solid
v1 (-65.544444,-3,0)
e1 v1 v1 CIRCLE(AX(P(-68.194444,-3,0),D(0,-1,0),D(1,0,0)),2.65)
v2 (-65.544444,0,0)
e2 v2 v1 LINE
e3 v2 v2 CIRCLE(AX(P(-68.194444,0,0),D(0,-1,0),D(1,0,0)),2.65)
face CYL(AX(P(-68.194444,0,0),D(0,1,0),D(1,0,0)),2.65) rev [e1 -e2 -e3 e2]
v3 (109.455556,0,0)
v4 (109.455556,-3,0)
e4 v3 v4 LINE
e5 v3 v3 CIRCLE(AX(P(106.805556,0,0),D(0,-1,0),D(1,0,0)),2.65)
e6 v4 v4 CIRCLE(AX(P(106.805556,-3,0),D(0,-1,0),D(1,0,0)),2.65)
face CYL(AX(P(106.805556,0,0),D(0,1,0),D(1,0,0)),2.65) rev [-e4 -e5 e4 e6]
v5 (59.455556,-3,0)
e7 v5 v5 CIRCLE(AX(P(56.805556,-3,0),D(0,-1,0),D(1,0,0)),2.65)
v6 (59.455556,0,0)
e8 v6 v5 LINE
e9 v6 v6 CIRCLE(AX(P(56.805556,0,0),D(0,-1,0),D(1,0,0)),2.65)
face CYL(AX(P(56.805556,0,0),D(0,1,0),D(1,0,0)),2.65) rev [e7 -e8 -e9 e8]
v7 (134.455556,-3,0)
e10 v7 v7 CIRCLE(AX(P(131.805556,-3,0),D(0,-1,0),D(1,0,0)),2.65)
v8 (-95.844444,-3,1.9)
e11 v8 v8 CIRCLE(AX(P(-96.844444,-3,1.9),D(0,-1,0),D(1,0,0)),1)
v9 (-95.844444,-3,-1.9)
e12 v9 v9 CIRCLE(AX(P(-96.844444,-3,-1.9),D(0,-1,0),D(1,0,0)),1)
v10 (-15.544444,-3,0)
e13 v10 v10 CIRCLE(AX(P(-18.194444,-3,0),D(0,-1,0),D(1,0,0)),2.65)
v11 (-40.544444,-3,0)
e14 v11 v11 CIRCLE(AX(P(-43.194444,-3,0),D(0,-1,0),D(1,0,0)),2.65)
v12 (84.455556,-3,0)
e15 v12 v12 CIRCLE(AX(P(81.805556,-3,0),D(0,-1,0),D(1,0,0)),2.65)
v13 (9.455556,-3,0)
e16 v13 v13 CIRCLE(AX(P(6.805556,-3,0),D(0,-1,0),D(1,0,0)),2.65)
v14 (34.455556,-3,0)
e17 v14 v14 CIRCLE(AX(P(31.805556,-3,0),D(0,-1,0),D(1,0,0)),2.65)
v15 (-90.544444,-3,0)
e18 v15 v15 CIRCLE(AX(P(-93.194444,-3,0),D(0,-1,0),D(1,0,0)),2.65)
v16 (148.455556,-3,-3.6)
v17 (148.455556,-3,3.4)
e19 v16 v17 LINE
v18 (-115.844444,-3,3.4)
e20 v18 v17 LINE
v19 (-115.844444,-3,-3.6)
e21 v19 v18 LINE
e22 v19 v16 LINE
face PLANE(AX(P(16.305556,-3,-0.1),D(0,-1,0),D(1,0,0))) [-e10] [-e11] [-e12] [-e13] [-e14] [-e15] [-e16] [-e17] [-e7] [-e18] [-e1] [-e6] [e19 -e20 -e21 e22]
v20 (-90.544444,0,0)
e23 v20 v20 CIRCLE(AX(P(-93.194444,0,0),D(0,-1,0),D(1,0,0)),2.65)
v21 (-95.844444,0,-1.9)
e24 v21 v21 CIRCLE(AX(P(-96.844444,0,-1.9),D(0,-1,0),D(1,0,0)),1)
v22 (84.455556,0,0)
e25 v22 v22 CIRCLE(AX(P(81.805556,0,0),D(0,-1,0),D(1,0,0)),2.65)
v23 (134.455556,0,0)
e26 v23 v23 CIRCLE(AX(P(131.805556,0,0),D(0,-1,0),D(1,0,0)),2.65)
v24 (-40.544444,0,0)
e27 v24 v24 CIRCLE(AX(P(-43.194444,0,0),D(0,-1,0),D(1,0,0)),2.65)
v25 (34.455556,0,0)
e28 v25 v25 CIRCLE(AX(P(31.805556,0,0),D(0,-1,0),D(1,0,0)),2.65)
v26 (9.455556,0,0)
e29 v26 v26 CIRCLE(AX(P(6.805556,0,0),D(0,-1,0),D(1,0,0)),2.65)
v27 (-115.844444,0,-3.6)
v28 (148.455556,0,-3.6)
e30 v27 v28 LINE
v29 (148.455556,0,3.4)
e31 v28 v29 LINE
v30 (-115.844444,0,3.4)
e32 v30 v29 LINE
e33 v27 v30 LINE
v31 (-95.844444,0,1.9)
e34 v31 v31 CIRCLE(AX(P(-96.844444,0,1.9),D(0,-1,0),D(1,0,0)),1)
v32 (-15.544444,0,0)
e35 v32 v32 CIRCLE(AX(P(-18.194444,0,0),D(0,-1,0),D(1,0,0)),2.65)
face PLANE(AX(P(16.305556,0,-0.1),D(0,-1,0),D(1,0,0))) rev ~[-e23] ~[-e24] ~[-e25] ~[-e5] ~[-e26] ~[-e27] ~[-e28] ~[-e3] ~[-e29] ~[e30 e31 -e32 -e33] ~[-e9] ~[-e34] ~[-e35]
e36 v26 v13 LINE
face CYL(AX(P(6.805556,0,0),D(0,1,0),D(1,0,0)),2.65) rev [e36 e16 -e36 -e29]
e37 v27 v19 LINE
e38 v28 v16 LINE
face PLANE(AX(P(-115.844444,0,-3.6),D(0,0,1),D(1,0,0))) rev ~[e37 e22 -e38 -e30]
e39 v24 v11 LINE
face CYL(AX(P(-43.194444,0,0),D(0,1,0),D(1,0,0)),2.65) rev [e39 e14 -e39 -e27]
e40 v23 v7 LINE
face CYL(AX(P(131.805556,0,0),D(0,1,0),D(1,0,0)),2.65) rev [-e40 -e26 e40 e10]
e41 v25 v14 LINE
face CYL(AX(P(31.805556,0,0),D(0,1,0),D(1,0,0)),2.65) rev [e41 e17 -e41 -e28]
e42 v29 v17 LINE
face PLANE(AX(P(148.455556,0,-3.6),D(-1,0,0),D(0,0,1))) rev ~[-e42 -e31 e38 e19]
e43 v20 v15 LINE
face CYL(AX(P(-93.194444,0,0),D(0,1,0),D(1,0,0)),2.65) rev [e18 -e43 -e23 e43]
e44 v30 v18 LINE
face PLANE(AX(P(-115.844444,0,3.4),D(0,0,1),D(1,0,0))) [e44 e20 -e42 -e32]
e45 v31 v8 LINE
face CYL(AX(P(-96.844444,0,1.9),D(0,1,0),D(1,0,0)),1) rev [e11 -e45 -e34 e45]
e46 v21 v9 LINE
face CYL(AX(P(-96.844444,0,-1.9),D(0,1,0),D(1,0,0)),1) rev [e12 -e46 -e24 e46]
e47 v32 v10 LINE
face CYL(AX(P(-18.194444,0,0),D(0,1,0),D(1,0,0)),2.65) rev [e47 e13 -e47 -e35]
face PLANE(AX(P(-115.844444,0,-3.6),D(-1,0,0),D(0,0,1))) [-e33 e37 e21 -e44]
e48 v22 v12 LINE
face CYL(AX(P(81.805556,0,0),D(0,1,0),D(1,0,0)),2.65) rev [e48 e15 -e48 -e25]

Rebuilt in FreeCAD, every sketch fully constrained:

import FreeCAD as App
import Part
import Sketcher

V = App.Vector


def add_polygon(sketch, points):
    """Adds a closed chain of lines whose ends are joined by coincident constraints."""
    first, n = sketch.GeometryCount, len(points)
    for a, b in zip(points, points[1:] + points[:1]):
        sketch.addGeometry(Part.LineSegment(App.Vector(*a, 0), App.Vector(*b, 0)), False)
    for i in range(n):
        sketch.addConstraint(Sketcher.Constraint("Coincident", first + i, 2, first + (i + 1) % n, 1))

doc = App.newDocument("Part")
params = doc.addObject("Spreadsheet::Sheet", "Params")
for row, (alias, value) in enumerate([
    ("sketch1_diameter", "2 mm"),
    ("sketch1_diameter2", "5.3 mm"),
    ("sketch1_height", "7 mm"),
    ("sketch1_width", "264.3 mm"),
    ("pad1_length", "3 mm"),
], start=1):
    params.set(f"A{row}", alias)
    params.set(f"B{row}", "=" + value)
    params.setAlias(f"B{row}", alias)

body = doc.addObject("PartDesign::Body", "Body")

sketch1 = body.newObject("Sketcher::SketchObject", "Sketch")
sketch1.AttachmentSupport = (doc.getObject("XZ_Plane"), [""])
sketch1.MapMode = "FlatFace"
add_polygon(sketch1, [(-115.8, 3.4), (-115.8, -3.6), (148.5, -3.6), (148.5, 3.4)])
sketch1.addGeometry(Part.Circle(V(-96.8, -1.9, 0), V(0, 0, 1), 1), False)
sketch1.addGeometry(Part.Circle(V(-93.2, 0, 0), V(0, 0, 1), 2.6), False)
sketch1.addGeometry(Part.Circle(V(-68.2, 0, 0), V(0, 0, 1), 2.6), False)
sketch1.addGeometry(Part.Circle(V(-43.2, 0, 0), V(0, 0, 1), 2.6), False)
sketch1.addGeometry(Part.Circle(V(-18.2, 0, 0), V(0, 0, 1), 2.6), False)
sketch1.addGeometry(Part.Circle(V(6.8, 0, 0), V(0, 0, 1), 2.6), False)
sketch1.addGeometry(Part.Circle(V(-96.8, 1.9, 0), V(0, 0, 1), 1), False)
sketch1.addGeometry(Part.Circle(V(31.8, 0, 0), V(0, 0, 1), 2.6), False)
sketch1.addGeometry(Part.Circle(V(56.8, 0, 0), V(0, 0, 1), 2.6), False)
sketch1.addGeometry(Part.Circle(V(81.8, 0, 0), V(0, 0, 1), 2.6), False)
sketch1.addGeometry(Part.Circle(V(106.8, 0, 0), V(0, 0, 1), 2.6), False)
sketch1.addGeometry(Part.Circle(V(131.8, 0, 0), V(0, 0, 1), 2.6), False)
sketch1.addConstraint([
    Sketcher.Constraint("Vertical", 0),
    Sketcher.Constraint("Horizontal", 1),
    Sketcher.Constraint("Vertical", 2),
    Sketcher.Constraint("Horizontal", 3),
    Sketcher.Constraint("Equal", 5, 6),
    Sketcher.Constraint("Equal", 6, 7),
    Sketcher.Constraint("Equal", 7, 8),
    Sketcher.Constraint("Equal", 8, 9),
    Sketcher.Constraint("Equal", 4, 10),
    Sketcher.Constraint("Equal", 9, 11),
    Sketcher.Constraint("Equal", 11, 12),
    Sketcher.Constraint("Equal", 12, 13),
    Sketcher.Constraint("Equal", 13, 14),
    Sketcher.Constraint("Equal", 14, 15),
    Sketcher.Constraint("Symmetric", 4, 3, 10, 3, -1),
    Sketcher.Constraint("PointOnObject", 5, 3, -1),
    Sketcher.Constraint("PointOnObject", 6, 3, -1),
    Sketcher.Constraint("PointOnObject", 7, 3, -1),
    Sketcher.Constraint("PointOnObject", 8, 3, -1),
    Sketcher.Constraint("PointOnObject", 9, 3, -1),
    Sketcher.Constraint("PointOnObject", 11, 3, -1),
    Sketcher.Constraint("PointOnObject", 12, 3, -1),
    Sketcher.Constraint("PointOnObject", 13, 3, -1),
    Sketcher.Constraint("PointOnObject", 14, 3, -1),
    Sketcher.Constraint("PointOnObject", 15, 3, -1),
    Sketcher.Constraint("Diameter", 4, 2.0),
    Sketcher.Constraint("Diameter", 5, 5.3),
    Sketcher.Constraint("DistanceY", 0, 2, 0, 1, 7.0),
    Sketcher.Constraint("DistanceX", 1, 1, 1, 2, 264.3),
    Sketcher.Constraint("DistanceX", 5, 3, 6, 3, 25.0),
    Sketcher.Constraint("DistanceX", 6, 3, 7, 3, 25.0),
    Sketcher.Constraint("DistanceX", 7, 3, 8, 3, 25.0),
    Sketcher.Constraint("DistanceX", 8, 3, 9, 3, 25.0),
    Sketcher.Constraint("DistanceX", 9, 3, 11, 3, 25.0),
    Sketcher.Constraint("DistanceX", 11, 3, 12, 3, 25.0),
    Sketcher.Constraint("DistanceX", 12, 3, 13, 3, 25.0),
    Sketcher.Constraint("DistanceX", 13, 3, 14, 3, 25.0),
    Sketcher.Constraint("DistanceX", 14, 3, 15, 3, 25.0),
    Sketcher.Constraint("DistanceX", 0, 2, 4, 3, 19.0),
    Sketcher.Constraint("DistanceY", 4, 3, -1, 1, 1.9),
    Sketcher.Constraint("DistanceY", 0, 2, -1, 1, 3.6),
    Sketcher.Constraint("DistanceX", 4, 3, 5, 3, 3.65),
    Sketcher.Constraint("DistanceX", 4, 3, -1, 1, 96.844444),
])
sketch1.setExpression("Constraints[29]", "Params.sketch1_diameter")
sketch1.setExpression("Constraints[30]", "Params.sketch1_diameter2")
sketch1.setExpression("Constraints[31]", "Params.sketch1_height")
sketch1.setExpression("Constraints[32]", "Params.sketch1_width")
pad1 = body.newObject("PartDesign::Pad", "Pad")
pad1.Profile = sketch1
pad1.setExpression("Length", "Params.pad1_length")

doc.recompute()
